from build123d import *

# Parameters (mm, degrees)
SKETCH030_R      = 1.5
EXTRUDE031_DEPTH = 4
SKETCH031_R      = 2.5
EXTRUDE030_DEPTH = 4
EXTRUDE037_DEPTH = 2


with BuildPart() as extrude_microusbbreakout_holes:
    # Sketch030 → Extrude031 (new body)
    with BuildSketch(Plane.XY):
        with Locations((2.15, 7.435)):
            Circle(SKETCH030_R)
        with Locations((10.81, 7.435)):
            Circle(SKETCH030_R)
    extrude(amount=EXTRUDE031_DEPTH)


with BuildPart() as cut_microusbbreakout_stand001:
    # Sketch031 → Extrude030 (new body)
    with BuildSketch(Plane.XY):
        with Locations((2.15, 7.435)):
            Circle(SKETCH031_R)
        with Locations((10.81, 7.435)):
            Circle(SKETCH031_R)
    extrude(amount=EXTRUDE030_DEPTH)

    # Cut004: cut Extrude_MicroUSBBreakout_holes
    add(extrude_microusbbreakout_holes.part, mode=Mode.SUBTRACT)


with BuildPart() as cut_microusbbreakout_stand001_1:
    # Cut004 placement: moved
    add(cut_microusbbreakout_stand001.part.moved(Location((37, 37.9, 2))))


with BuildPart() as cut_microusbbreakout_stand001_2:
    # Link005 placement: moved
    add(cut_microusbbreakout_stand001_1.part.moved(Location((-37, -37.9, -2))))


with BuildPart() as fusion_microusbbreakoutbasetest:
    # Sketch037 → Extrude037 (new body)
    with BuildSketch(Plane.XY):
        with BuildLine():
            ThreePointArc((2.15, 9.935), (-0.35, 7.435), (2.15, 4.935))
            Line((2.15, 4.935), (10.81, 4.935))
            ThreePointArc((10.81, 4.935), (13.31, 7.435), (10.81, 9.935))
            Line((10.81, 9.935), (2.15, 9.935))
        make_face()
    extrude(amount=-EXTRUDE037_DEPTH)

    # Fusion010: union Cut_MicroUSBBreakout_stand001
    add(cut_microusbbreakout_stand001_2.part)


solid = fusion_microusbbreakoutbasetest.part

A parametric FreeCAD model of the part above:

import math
import FreeCAD as App
import Part
import Sketcher

V = App.Vector
Q = App.Units.Quantity

doc = App.newDocument("Part")
body = doc.addObject("PartDesign::Body", "Body")
body.AllowCompound = True

# Sketch on XY plane
sketch1 = doc.addObject("Sketcher::SketchObject", "Sketch")
body.addObject(sketch1)
sketch1.AttachmentSupport = (doc.XY_Plane, [""])
sketch1.MapMode = "FlatFace"
sketch1.addGeometry([
    Part.Circle(V(2.15, 7.435, 0), V(0, 0, 1), 1.5),
    Part.Circle(V(10.81, 7.435, 0), V(0, 0, 1), 1.5),
], False)
sketch1.addConstraint([
    Sketcher.Constraint("Equal", 0, 1),
    Sketcher.Constraint("Horizontal", 0, 3, 1, 3),
    Sketcher.Constraint("Diameter", 0, Q("3 mm")),
    Sketcher.Constraint("DistanceX", -1, 1, 0, 3, Q("2.15 mm")),
    Sketcher.Constraint("DistanceX", -1, 1, 1, 3, Q("10.81 mm")),
    Sketcher.Constraint("DistanceY", -1, 1, 0, 3, Q("7.435 mm")),
])
pad1 = doc.addObject("PartDesign::Pad", "Pad")
body.addObject(pad1)
pad1.Profile = sketch1
pad1.Length = 4
body2 = doc.addObject("PartDesign::Body", "Body001")
body2.AllowCompound = True

# Sketch on XY plane
sketch2 = doc.addObject("Sketcher::SketchObject", "Sketch001")
body2.addObject(sketch2)
sketch2.AttachmentSupport = (doc.getObject("XY_Plane001"), [""])
sketch2.MapMode = "FlatFace"
sketch2.addGeometry([
    Part.Circle(V(2.15, 7.435, 0), V(0, 0, 1), 2.5),
    Part.Circle(V(10.81, 7.435, 0), V(0, 0, 1), 2.5),
], False)
sketch2.addConstraint([
    Sketcher.Constraint("Equal", 0, 1),
    Sketcher.Constraint("Horizontal", 0, 3, 1, 3),
    Sketcher.Constraint("Diameter", 0, Q("5 mm")),
    Sketcher.Constraint("DistanceX", -1, 1, 0, 3, Q("2.15 mm")),
    Sketcher.Constraint("DistanceX", -1, 1, 1, 3, Q("10.81 mm")),
    Sketcher.Constraint("DistanceY", -1, 1, 0, 3, Q("7.435 mm")),
])
pad2 = doc.addObject("PartDesign::Pad", "Pad001")
body2.addObject(pad2)
pad2.Profile = sketch2
pad2.Length = 4
doc.recompute()

boolean = doc.addObject("PartDesign::Boolean", "Boolean")
body2.addObject(boolean)
boolean.Type = "Cut"
boolean.addObjects([body])
body3 = doc.addObject("PartDesign::Body", "Body002")
body3.AllowCompound = True
doc.recompute()

body2.Placement = App.Placement(V(37, 37.9, 2), App.Rotation(V(0, 0, 1), 0))
boolean2 = doc.addObject("PartDesign::Boolean", "Boolean001")
body3.addObject(boolean2)
boolean2.Type = "Fuse"
boolean2.addObjects([body2])
body4 = doc.addObject("PartDesign::Body", "Body003")
body4.AllowCompound = True
doc.recompute()

body3.Placement = App.Placement(V(-37, -37.9, -2), App.Rotation(V(0, 0, 1), 0))
boolean3 = doc.addObject("PartDesign::Boolean", "Boolean002")
body4.addObject(boolean3)
boolean3.Type = "Fuse"
boolean3.addObjects([body3])
body5 = doc.addObject("PartDesign::Body", "Body004")

# Sketch on XY plane
sketch3 = doc.addObject("Sketcher::SketchObject", "Sketch002")
body5.addObject(sketch3)
sketch3.AttachmentSupport = (doc.getObject("XY_Plane004"), [""])
sketch3.MapMode = "FlatFace"
sketch3.addGeometry([
    Part.ArcOfCircle(Part.Circle(V(2.15, 7.435, 0), V(0, 0, 1), 2.5), math.radians(90), math.radians(270)),
    Part.LineSegment(V(2.15, 4.935, 0), V(10.81, 4.935, 0)),
    Part.ArcOfCircle(Part.Circle(V(10.81, 7.435, 0), V(0, 0, 1), 2.5), math.radians(-90), math.radians(90)),
    Part.LineSegment(V(10.81, 9.935, 0), V(2.15, 9.935, 0)),
], False)
sketch3.addConstraint([
    Sketcher.Constraint("Tangent", 0, 2, 1, 1),
    Sketcher.Constraint("Tangent", 1, 2, 2, 1),
    Sketcher.Constraint("Tangent", 2, 2, 3, 1),
    Sketcher.Constraint("Tangent", 3, 2, 0, 1),
    Sketcher.Constraint("Horizontal", 1),
    Sketcher.Constraint("Horizontal", 3),
    Sketcher.Constraint("Radius", 0, Q("2.5 mm")),
    Sketcher.Constraint("DistanceX", 1, 1, 1, 2, Q("8.66 mm")),
    Sketcher.Constraint("DistanceX", -1, 1, 0, 3, Q("2.15 mm")),
    Sketcher.Constraint("DistanceY", -1, 1, 0, 3, Q("7.435 mm")),
])
pad3 = doc.addObject("PartDesign::Pad", "Pad002")
body5.addObject(pad3)
pad3.Profile = sketch3
pad3.Length = 2
pad3.Reversed = True
doc.recompute()

boolean4 = doc.addObject("PartDesign::Boolean", "Boolean003")
body5.addObject(boolean4)
boolean4.Type = "Fuse"
boolean4.addObjects([body4])

doc.recompute()
